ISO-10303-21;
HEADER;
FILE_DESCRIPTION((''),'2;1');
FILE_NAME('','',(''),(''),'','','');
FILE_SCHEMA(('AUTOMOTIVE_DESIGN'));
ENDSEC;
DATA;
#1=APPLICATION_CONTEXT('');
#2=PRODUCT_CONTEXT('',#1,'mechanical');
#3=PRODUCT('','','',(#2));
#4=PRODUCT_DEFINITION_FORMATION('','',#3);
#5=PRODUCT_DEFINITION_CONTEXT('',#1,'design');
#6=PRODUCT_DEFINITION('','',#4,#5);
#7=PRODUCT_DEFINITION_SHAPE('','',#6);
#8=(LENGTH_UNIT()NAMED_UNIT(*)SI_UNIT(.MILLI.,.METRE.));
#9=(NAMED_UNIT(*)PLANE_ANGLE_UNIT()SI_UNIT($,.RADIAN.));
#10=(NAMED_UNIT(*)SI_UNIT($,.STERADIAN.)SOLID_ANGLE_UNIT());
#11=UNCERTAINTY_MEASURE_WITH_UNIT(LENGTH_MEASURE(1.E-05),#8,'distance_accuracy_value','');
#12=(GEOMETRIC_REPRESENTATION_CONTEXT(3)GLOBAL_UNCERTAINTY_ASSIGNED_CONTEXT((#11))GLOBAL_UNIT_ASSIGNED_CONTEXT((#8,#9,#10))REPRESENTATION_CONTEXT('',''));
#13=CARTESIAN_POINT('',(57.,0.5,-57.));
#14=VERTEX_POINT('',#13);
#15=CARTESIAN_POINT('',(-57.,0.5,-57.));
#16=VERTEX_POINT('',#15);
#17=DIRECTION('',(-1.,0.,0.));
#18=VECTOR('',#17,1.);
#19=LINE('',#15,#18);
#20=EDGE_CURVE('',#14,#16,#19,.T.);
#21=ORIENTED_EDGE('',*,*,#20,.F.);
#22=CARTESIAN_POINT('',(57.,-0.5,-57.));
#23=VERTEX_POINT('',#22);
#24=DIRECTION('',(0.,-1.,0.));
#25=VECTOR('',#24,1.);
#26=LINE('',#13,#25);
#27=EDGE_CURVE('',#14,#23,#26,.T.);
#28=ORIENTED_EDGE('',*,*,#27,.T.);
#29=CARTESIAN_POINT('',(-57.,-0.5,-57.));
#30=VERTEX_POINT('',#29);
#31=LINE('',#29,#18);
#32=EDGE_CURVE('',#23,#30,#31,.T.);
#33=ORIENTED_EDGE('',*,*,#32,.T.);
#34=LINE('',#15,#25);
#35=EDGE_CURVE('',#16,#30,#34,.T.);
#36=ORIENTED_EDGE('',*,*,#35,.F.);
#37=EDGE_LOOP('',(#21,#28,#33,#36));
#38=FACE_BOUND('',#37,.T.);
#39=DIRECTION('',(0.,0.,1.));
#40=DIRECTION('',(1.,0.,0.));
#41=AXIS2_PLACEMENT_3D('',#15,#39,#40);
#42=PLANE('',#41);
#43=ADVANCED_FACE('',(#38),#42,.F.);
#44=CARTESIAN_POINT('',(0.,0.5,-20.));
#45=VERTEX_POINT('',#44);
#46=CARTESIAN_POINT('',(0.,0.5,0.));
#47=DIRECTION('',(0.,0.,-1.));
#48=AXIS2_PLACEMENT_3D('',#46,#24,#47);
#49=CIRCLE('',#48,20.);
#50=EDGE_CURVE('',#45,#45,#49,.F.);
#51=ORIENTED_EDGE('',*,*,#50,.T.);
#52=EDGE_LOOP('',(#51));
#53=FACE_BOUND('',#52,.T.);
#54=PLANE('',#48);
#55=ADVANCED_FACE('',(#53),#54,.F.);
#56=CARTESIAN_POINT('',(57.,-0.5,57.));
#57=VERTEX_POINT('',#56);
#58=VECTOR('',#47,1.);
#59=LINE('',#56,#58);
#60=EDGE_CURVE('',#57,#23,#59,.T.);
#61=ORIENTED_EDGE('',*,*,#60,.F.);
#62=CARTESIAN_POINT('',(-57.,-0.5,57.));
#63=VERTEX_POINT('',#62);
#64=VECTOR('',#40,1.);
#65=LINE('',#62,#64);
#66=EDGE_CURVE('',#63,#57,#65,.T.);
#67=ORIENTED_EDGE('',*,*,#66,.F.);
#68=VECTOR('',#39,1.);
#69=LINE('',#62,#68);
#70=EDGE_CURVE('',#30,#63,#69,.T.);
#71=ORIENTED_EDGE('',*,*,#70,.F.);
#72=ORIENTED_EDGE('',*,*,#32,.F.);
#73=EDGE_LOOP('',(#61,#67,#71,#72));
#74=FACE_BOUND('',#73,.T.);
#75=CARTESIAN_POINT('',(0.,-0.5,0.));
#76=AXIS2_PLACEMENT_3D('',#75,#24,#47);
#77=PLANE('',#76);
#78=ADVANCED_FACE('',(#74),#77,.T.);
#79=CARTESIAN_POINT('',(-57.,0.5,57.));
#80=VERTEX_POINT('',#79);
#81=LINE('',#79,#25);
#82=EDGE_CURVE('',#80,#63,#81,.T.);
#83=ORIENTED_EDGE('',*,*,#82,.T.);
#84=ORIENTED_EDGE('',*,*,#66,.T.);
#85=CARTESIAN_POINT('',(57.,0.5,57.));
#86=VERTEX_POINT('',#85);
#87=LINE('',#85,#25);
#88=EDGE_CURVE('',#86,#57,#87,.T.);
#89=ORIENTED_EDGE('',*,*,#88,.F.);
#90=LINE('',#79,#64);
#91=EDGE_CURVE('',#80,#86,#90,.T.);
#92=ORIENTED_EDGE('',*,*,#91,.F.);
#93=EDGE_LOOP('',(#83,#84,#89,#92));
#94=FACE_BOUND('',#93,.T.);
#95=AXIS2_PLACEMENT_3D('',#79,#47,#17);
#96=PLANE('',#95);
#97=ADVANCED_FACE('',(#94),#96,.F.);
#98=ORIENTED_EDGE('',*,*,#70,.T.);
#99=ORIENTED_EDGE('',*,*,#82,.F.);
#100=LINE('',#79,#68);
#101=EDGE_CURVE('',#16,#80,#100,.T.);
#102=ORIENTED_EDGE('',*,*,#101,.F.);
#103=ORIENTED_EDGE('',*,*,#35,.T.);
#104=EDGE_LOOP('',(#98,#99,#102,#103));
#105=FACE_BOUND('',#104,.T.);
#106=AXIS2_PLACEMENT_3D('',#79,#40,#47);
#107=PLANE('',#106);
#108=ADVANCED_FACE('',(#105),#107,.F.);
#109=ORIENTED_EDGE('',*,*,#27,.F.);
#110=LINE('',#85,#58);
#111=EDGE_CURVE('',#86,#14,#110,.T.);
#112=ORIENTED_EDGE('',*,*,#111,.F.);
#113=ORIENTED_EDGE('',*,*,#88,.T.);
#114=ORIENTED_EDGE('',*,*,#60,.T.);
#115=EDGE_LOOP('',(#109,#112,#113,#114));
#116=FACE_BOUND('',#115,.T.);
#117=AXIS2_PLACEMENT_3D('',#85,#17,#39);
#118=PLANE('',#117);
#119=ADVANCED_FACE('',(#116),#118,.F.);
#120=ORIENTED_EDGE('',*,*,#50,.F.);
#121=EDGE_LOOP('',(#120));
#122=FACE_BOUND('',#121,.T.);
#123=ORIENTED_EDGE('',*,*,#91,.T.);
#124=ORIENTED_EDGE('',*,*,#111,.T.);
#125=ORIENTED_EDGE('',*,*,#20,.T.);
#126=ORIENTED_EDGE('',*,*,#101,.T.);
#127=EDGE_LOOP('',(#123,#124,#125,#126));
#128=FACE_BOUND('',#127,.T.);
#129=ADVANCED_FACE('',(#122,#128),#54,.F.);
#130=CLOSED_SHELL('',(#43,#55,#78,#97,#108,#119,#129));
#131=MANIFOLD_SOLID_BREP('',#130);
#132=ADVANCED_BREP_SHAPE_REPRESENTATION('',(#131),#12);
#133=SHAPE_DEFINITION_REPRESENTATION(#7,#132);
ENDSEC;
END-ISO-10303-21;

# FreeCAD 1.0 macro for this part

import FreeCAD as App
import Part
import Sketcher

V = App.Vector
Q = App.Units.Quantity


def add_polygon(sketch, points):
    """Adds a closed chain of lines whose ends are joined by coincident constraints."""
    first, n = sketch.GeometryCount, len(points)
    for a, b in zip(points, points[1:] + points[:1]):
        sketch.addGeometry(Part.LineSegment(App.Vector(*a, 0), App.Vector(*b, 0)), False)
    for i in range(n):
        sketch.addConstraint(Sketcher.Constraint("Coincident", first + i, 2, first + (i + 1) % n, 1))

doc = App.newDocument("Part")
body = doc.addObject("PartDesign::Body", "Body")

# Sketch on XZ plane
sketch1 = body.newObject("Sketcher::SketchObject", "Sketch")
sketch1.AttachmentSupport = (doc.getObject("XZ_Plane"), [""])
sketch1.MapMode = "FlatFace"
add_polygon(sketch1, [(-57, -57), (-57, 57), (57, 57), (57, -57)])  # lines 0-3
sketch1.addConstraint([
    Sketcher.Constraint("Vertical", 0),
    Sketcher.Constraint("Horizontal", 1),
    Sketcher.Constraint("Vertical", 2),
    Sketcher.Constraint("Horizontal", 3),
    Sketcher.Constraint("Symmetric", 0, 2, 2, 2, -1, 1),
    Sketcher.Constraint("Equal", 3, 0),
    Sketcher.Constraint("DistanceX", 1, 1, 1, 2, Q("114 mm")),
])
pad1 = body.newObject("PartDesign::Pad", "Pad")
pad1.Profile = sketch1
pad1.Length = 1
pad1.Midplane = True

doc.recompute()
